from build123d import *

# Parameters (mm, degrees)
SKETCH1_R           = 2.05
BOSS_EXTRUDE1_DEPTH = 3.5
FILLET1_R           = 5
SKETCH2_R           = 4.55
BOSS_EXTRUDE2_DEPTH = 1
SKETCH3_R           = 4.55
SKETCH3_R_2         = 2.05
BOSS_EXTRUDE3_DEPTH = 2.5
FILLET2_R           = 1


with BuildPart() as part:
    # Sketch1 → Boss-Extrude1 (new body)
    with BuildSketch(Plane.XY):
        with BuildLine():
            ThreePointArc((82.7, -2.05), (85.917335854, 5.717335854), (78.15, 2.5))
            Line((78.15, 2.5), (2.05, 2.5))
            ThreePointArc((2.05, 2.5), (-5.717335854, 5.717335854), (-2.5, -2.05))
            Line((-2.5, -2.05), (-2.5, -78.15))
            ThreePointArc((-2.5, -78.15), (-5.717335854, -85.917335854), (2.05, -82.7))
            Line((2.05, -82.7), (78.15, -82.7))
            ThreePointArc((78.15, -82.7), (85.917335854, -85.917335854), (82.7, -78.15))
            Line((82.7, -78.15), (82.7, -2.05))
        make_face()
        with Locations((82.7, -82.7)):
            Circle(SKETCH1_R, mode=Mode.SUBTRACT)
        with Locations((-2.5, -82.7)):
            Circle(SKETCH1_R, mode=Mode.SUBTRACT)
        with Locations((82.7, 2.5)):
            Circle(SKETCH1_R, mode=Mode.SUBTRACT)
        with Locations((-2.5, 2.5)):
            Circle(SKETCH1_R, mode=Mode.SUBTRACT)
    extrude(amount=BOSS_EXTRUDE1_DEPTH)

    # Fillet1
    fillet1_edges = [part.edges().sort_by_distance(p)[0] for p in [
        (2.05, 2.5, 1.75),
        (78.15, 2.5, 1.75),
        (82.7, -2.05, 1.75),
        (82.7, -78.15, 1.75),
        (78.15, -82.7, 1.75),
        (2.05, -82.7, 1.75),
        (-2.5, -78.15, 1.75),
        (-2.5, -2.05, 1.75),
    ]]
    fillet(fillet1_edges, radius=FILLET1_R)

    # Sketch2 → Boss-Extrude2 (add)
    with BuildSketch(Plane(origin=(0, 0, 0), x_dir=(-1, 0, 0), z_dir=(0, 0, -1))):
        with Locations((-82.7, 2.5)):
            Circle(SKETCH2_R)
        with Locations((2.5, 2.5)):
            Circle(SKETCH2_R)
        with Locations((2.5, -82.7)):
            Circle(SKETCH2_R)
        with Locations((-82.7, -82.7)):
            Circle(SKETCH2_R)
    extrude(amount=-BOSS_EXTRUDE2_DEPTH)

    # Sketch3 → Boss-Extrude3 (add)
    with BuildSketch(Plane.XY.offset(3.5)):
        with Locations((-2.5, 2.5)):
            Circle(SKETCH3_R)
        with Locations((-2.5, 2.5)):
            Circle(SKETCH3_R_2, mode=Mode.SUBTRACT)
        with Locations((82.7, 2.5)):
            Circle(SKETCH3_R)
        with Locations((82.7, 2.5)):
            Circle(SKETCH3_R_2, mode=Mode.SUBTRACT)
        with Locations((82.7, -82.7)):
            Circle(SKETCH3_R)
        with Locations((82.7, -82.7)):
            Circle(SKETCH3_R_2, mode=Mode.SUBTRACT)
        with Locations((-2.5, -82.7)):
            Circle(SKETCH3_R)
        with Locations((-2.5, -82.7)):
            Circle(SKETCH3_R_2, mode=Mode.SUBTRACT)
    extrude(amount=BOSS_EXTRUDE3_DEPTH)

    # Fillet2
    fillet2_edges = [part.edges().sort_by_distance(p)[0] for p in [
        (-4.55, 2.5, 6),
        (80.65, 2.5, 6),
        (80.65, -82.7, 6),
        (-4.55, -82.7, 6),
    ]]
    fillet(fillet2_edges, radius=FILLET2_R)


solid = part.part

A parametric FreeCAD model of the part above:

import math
import FreeCAD as App
import Part
import Sketcher

V = App.Vector


def edges_at(feature, points):
    """Names of the edges that pass closest to the given points."""
    edges = feature.Shape.Edges
    near = lambda p: min(range(len(edges)), key=lambda i: edges[i].distToShape(Part.Vertex(*p))[0])
    return sorted({f"Edge{near(p) + 1}" for p in points})

doc = App.newDocument("Part")
body = doc.addObject("PartDesign::Body", "Body")

# Sketch on XY plane
sketch1 = body.newObject("Sketcher::SketchObject", "Sketch")
sketch1.AttachmentSupport = (doc.getObject("XY_Plane"), [""])
sketch1.MapMode = "FlatFace"
sketch1.addGeometry(Part.ArcOfCircle(Part.Circle(V(82.7, 2.5, 0), V(0, 0, 1), 4.5), math.radians(-90), math.radians(180)), False)
sketch1.addGeometry(Part.LineSegment(V(78.2, 2.5, 0), V(2, 2.5, 0)), False)
sketch1.addGeometry(Part.ArcOfCircle(Part.Circle(V(-2.5, 2.5, 0), V(0, 0, 1), 4.5), math.radians(0), math.radians(270)), False)
sketch1.addGeometry(Part.LineSegment(V(-2.5, -2, 0), V(-2.5, -78.2, 0)), False)
sketch1.addGeometry(Part.ArcOfCircle(Part.Circle(V(-2.5, -82.7, 0), V(0, 0, 1), 4.5), math.radians(90), math.radians(360)), False)
sketch1.addGeometry(Part.LineSegment(V(2, -82.7, 0), V(78.2, -82.7, 0)), False)
sketch1.addGeometry(Part.ArcOfCircle(Part.Circle(V(82.7, -82.7, 0), V(0, 0, 1), 4.5), math.radians(180), math.radians(450)), False)
sketch1.addGeometry(Part.LineSegment(V(82.7, -78.2, 0), V(82.7, -2, 0)), False)
sketch1.addGeometry(Part.Circle(V(-2.5, -82.7, 0), V(0, 0, 1), 2), False)
sketch1.addGeometry(Part.Circle(V(82.7, -82.7, 0), V(0, 0, 1), 2), False)
sketch1.addGeometry(Part.Circle(V(-2.5, 2.5, 0), V(0, 0, 1), 2), False)
sketch1.addGeometry(Part.Circle(V(82.7, 2.5, 0), V(0, 0, 1), 2), False)
sketch1.addConstraint(Sketcher.Constraint("Coincident", 0, 2, 1, 1))
sketch1.addConstraint(Sketcher.Constraint("Coincident", 1, 2, 2, 1))
sketch1.addConstraint(Sketcher.Constraint("Coincident", 2, 2, 3, 1))
sketch1.addConstraint(Sketcher.Constraint("Coincident", 3, 2, 4, 1))
sketch1.addConstraint(Sketcher.Constraint("Coincident", 4, 2, 5, 1))
sketch1.addConstraint(Sketcher.Constraint("Coincident", 5, 2, 6, 1))
sketch1.addConstraint(Sketcher.Constraint("Coincident", 6, 2, 7, 1))
sketch1.addConstraint(Sketcher.Constraint("Coincident", 7, 2, 0, 1))
sketch1.addConstraint(Sketcher.Constraint("Horizontal", 1))
sketch1.addConstraint(Sketcher.Constraint("Vertical", 3))
sketch1.addConstraint(Sketcher.Constraint("Horizontal", 5))
sketch1.addConstraint(Sketcher.Constraint("Vertical", 7))
sketch1.addConstraint(Sketcher.Constraint("Coincident", 8, 3, 4, 3))
sketch1.addConstraint(Sketcher.Constraint("Coincident", 9, 3, 6, 3))
sketch1.addConstraint(Sketcher.Constraint("Coincident", 10, 3, 2, 3))
sketch1.addConstraint(Sketcher.Constraint("Coincident", 11, 3, 0, 3))
sketch1.addConstraint(Sketcher.Constraint("Equal", 0, 2))
sketch1.addConstraint(Sketcher.Constraint("Equal", 2, 4))
sketch1.addConstraint(Sketcher.Constraint("Equal", 4, 6))
sketch1.addConstraint(Sketcher.Constraint("Equal", 8, 9))
sketch1.addConstraint(Sketcher.Constraint("Equal", 9, 10))
sketch1.addConstraint(Sketcher.Constraint("Equal", 10, 11))
sketch1.addConstraint(Sketcher.Constraint("Horizontal", 0, 3, 2, 3))
sketch1.addConstraint(Sketcher.Constraint("Horizontal", 4, 3, 6, 3))
sketch1.addConstraint(Sketcher.Constraint("Horizontal", 11, 3, 0, 2))
sketch1.addConstraint(Sketcher.Constraint("Horizontal", 9, 3, 4, 2))
sketch1.addConstraint(Sketcher.Constraint("Vertical", 2, 3, 4, 3))
sketch1.addConstraint(Sketcher.Constraint("Vertical", 0, 3, 6, 3))
sketch1.addConstraint(Sketcher.Constraint("Vertical", 10, 3, 2, 2))
sketch1.addConstraint(Sketcher.Constraint("Vertical", 11, 3, 6, 2))
sketch1.addConstraint(Sketcher.Constraint("Equal", 5, 3))
sketch1.addConstraint(Sketcher.Constraint("Diameter", 8, 4.1))
sketch1.addConstraint(Sketcher.Constraint("Radius", 0, 4.55))
sketch1.addConstraint(Sketcher.Constraint("DistanceX", 1, 2, 1, 1, 76.1))
sketch1.addConstraint(Sketcher.Constraint("DistanceX", -1, 1, 0, 3, 82.7))
sketch1.addConstraint(Sketcher.Constraint("DistanceY", -1, 1, 0, 3, 2.5))
pad1 = body.newObject("PartDesign::Pad", "Pad")
pad1.Profile = sketch1
pad1.Length = 3.5
doc.recompute()

fillet = body.newObject("PartDesign::Fillet", "Fillet")
fillet.Base = (pad1, edges_at(pad1, [
    (2.05, 2.5, 1.75),
    (78.15, 2.5, 1.75),
    (82.7, -2.05, 1.75),
    (82.7, -78.15, 1.75),
    (78.15, -82.7, 1.75),
    (2.05, -82.7, 1.75),
    (-2.5, -78.15, 1.75),
    (-2.5, -2.05, 1.75),
]))
fillet.Radius = 5

# Sketch on XY plane
sketch2 = body.newObject("Sketcher::SketchObject", "Sketch001")
sketch2.AttachmentSupport = (doc.getObject("XY_Plane"), [""])
sketch2.MapMode = "FlatFace"
sketch2.addGeometry(Part.Circle(V(82.7, 2.5, 0), V(0, 0, 1), 4.5), False)
sketch2.addGeometry(Part.Circle(V(-2.5, 2.5, 0), V(0, 0, 1), 4.5), False)
sketch2.addGeometry(Part.Circle(V(-2.5, -82.7, 0), V(0, 0, 1), 4.5), False)
sketch2.addGeometry(Part.Circle(V(82.7, -82.7, 0), V(0, 0, 1), 4.5), False)
sketch2.addConstraint(Sketcher.Constraint("Equal", 0, 1))
sketch2.addConstraint(Sketcher.Constraint("Equal", 1, 2))
sketch2.addConstraint(Sketcher.Constraint("Equal", 2, 3))
sketch2.addConstraint(Sketcher.Constraint("Horizontal", 0, 3, 1, 3))
sketch2.addConstraint(Sketcher.Constraint("Horizontal", 2, 3, 3, 3))
sketch2.addConstraint(Sketcher.Constraint("Vertical", 1, 3, 2, 3))
sketch2.addConstraint(Sketcher.Constraint("Vertical", 0, 3, 3, 3))
sketch2.addConstraint(Sketcher.Constraint("Diameter", 0, 9.1))
sketch2.addConstraint(Sketcher.Constraint("DistanceX", -1, 1, 0, 3, 82.7))
sketch2.addConstraint(Sketcher.Constraint("DistanceY", -1, 1, 0, 3, 2.5))
sketch2.addConstraint(Sketcher.Constraint("DistanceX", 1, 3, -1, 1, 2.5))
sketch2.addConstraint(Sketcher.Constraint("DistanceY", 2, 3, -1, 1, 82.7))
pad2 = body.newObject("PartDesign::Pad", "Pad001")
pad2.Profile = sketch2
pad2.Length = 1

# Sketch on XY plane
sketch3 = body.newObject("Sketcher::SketchObject", "Sketch002")
sketch3.AttachmentSupport = (doc.getObject("XY_Plane"), [""])
sketch3.MapMode = "FlatFace"
sketch3.AttachmentOffset = App.Placement(V(0, 0, 3.5), App.Rotation())
sketch3.addGeometry(Part.Circle(V(-2.5, 2.5, 0), V(0, 0, 1), 4.5), False)
sketch3.addGeometry(Part.Circle(V(-2.5, 2.5, 0), V(0, 0, 1), 2), False)
sketch3.addGeometry(Part.Circle(V(82.7, 2.5, 0), V(0, 0, 1), 4.5), False)
sketch3.addGeometry(Part.Circle(V(82.7, 2.5, 0), V(0, 0, 1), 2), False)
sketch3.addGeometry(Part.Circle(V(82.7, -82.7, 0), V(0, 0, 1), 4.5), False)
sketch3.addGeometry(Part.Circle(V(82.7, -82.7, 0), V(0, 0, 1), 2), False)
sketch3.addGeometry(Part.Circle(V(-2.5, -82.7, 0), V(0, 0, 1), 4.5), False)
sketch3.addGeometry(Part.Circle(V(-2.5, -82.7, 0), V(0, 0, 1), 2), False)
sketch3.addConstraint(Sketcher.Constraint("Coincident", 1, 3, 0, 3))
sketch3.addConstraint(Sketcher.Constraint("Coincident", 3, 3, 2, 3))
sketch3.addConstraint(Sketcher.Constraint("Coincident", 5, 3, 4, 3))
sketch3.addConstraint(Sketcher.Constraint("Coincident", 7, 3, 6, 3))
sketch3.addConstraint(Sketcher.Constraint("Equal", 0, 2))
sketch3.addConstraint(Sketcher.Constraint("Equal", 1, 3))
sketch3.addConstraint(Sketcher.Constraint("Equal", 2, 4))
sketch3.addConstraint(Sketcher.Constraint("Equal", 3, 5))
sketch3.addConstraint(Sketcher.Constraint("Equal", 4, 6))
sketch3.addConstraint(Sketcher.Constraint("Equal", 5, 7))
sketch3.addConstraint(Sketcher.Constraint("Horizontal", 1, 3, 2, 3))
sketch3.addConstraint(Sketcher.Constraint("Horizontal", 5, 3, 6, 3))
sketch3.addConstraint(Sketcher.Constraint("Vertical", 3, 3, 4, 3))
sketch3.addConstraint(Sketcher.Constraint("Vertical", 1, 3, 6, 3))
sketch3.addConstraint(Sketcher.Constraint("Diameter", 0, 9.1))
sketch3.addConstraint(Sketcher.Constraint("Diameter", 1, 4.1))
sketch3.addConstraint(Sketcher.Constraint("DistanceX", 0, 3, -1, 1, 2.5))
sketch3.addConstraint(Sketcher.Constraint("DistanceY", -1, 1, 0, 3, 2.5))
sketch3.addConstraint(Sketcher.Constraint("DistanceX", -1, 1, 2, 3, 82.7))
sketch3.addConstraint(Sketcher.Constraint("DistanceY", 4, 3, -1, 1, 82.7))
pad3 = body.newObject("PartDesign::Pad", "Pad002")
pad3.Profile = sketch3
pad3.Length = 2.5
doc.recompute()

fillet2 = body.newObject("PartDesign::Fillet", "Fillet001")
fillet2.Base = (pad3, edges_at(pad3, [
    (-4.55, 2.5, 6),
    (80.65, 2.5, 6),
    (80.65, -82.7, 6),
    (-4.55, -82.7, 6),
]))
fillet2.Radius = 1

doc.recompute()
